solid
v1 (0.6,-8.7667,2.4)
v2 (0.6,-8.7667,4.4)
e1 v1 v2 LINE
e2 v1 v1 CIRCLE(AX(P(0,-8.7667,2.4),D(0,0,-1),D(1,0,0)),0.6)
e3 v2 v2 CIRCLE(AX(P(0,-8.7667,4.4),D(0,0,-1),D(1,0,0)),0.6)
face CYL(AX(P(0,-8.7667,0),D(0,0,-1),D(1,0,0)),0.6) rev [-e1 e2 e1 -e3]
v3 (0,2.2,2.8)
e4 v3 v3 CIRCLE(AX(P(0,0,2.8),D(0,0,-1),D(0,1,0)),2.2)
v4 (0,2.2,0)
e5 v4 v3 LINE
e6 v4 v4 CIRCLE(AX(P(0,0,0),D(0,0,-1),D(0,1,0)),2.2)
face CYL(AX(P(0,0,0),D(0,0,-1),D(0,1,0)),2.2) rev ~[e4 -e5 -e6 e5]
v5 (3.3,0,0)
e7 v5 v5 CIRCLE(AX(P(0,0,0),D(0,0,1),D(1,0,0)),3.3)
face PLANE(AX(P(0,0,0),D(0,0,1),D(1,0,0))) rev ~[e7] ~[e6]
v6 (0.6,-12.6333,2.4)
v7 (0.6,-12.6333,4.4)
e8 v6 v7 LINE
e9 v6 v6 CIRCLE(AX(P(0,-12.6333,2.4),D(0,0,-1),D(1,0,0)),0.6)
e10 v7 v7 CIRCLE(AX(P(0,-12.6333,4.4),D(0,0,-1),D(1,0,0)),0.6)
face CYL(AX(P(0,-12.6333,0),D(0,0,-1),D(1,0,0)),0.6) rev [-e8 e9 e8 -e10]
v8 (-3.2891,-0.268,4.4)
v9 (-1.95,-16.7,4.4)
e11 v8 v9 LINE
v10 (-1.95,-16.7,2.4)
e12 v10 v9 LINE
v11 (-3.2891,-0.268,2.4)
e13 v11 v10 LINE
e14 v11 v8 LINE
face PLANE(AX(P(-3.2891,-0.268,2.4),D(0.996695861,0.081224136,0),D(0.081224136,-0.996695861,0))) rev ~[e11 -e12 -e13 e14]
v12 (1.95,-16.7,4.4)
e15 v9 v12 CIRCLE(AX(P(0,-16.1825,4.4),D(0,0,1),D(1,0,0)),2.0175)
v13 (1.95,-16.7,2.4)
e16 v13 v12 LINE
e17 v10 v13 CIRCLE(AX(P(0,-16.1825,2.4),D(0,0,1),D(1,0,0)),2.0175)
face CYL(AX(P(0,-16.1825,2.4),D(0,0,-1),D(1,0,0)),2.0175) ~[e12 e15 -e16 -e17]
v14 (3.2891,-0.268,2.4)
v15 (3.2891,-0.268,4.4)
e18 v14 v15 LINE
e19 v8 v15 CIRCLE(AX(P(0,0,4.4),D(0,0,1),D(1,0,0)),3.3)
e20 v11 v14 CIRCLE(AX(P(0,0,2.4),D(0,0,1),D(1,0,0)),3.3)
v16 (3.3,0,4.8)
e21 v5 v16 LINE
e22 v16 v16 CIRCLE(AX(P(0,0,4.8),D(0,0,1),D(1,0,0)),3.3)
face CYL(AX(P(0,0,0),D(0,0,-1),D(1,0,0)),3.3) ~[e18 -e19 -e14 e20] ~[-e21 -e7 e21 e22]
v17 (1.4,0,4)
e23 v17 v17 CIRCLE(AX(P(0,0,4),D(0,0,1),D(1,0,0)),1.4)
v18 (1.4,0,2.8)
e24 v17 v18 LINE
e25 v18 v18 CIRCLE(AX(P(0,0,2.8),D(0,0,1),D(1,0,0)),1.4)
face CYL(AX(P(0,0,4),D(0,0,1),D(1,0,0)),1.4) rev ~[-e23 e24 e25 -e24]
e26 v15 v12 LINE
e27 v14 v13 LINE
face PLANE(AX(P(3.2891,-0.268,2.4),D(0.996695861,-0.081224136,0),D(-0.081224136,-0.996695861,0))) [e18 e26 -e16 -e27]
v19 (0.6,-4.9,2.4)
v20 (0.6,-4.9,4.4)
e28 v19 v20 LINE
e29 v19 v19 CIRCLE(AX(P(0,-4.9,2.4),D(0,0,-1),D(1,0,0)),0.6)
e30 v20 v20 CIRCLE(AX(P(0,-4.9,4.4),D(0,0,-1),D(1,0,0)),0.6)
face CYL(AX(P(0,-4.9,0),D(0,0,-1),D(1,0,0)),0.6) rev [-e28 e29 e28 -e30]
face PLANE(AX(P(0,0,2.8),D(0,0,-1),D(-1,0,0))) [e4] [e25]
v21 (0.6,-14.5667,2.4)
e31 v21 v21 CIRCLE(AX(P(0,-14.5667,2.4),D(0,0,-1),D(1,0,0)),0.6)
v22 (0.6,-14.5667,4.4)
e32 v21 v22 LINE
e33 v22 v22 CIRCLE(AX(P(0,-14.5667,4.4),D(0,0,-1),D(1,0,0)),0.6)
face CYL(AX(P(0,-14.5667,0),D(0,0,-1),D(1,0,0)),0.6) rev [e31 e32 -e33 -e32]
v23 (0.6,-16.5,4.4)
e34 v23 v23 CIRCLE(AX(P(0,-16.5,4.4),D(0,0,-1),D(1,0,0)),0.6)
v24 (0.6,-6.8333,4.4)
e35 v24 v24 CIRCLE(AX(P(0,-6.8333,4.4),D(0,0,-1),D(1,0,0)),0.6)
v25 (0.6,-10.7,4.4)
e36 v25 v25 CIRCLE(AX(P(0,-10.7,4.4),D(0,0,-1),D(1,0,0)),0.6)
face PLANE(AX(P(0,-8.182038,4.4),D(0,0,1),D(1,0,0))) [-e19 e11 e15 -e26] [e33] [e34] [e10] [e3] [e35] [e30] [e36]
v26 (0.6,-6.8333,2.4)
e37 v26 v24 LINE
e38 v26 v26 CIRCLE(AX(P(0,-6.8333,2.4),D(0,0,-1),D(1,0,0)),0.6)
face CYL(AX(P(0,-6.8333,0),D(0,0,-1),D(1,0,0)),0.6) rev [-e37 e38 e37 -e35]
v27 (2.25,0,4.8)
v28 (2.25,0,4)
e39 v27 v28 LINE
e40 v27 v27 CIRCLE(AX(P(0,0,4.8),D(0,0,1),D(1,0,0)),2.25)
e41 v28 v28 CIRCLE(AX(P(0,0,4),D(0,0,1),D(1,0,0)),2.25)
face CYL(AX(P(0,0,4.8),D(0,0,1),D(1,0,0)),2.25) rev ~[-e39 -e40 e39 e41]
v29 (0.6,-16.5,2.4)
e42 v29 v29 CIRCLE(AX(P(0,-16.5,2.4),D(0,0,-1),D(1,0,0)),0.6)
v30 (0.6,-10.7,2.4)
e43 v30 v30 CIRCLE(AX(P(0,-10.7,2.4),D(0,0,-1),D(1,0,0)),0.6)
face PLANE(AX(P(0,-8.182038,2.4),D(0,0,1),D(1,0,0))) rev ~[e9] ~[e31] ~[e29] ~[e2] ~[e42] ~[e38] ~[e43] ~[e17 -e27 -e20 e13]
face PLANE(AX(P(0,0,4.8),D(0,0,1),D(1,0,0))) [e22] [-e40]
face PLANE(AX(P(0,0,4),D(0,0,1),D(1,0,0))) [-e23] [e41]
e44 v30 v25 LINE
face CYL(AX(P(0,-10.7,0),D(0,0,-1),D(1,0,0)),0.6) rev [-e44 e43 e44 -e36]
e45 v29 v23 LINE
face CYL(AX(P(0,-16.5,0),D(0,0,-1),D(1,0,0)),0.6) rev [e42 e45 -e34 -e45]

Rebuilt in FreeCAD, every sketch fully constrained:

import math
import FreeCAD as App
import Part
import Sketcher
from FreeCAD import Vector
Q = App.Units.Quantity

doc = App.newDocument("Part")
body = doc.addObject("PartDesign::Body", "Body")

# Sketch on XY plane
sketch1 = doc.addObject("Sketcher::SketchObject", "Sketch")
body.addObject(sketch1)
sketch1.AttachmentSupport = (doc.XY_Plane, [""])
sketch1.MapMode = "FlatFace"
sketch1.addGeometry(Part.Circle(Vector(0, 0, 0), Vector(0, 0, 1), 3.3), False)
sketch1.addConstraint([
    Sketcher.Constraint("Coincident", 0, 3, -1, 1),
    Sketcher.Constraint("Diameter", 0, 6.6),
])
pad1 = doc.addObject("PartDesign::Pad", "Pad")
body.addObject(pad1)
pad1.Profile = sketch1
pad1.Length = 4.8

# Sketch on XY plane
sketch2 = doc.addObject("Sketcher::SketchObject", "Sketch001")
body.addObject(sketch2)
sketch2.AttachmentSupport = (doc.XY_Plane, [""])
sketch2.MapMode = "FlatFace"
sketch2.AttachmentOffset = App.Placement(Vector(0, 0, 4.8), App.Rotation())
sketch2.addGeometry(Part.Circle(Vector(0, 0, 0), Vector(0, 0, 1), 2.2), False)
sketch2.addConstraint([
    Sketcher.Constraint("Coincident", 0, 3, -1, 1),
    Sketcher.Constraint("Diameter", 0, 4.5),
])
pocket1 = doc.addObject("PartDesign::Pocket", "Pocket")
body.addObject(pocket1)
pocket1.Profile = sketch2
pocket1.Length = 0.8

# Sketch on XY plane
sketch3 = doc.addObject("Sketcher::SketchObject", "Sketch002")
body.addObject(sketch3)
sketch3.AttachmentSupport = (doc.XY_Plane, [""])
sketch3.MapMode = "FlatFace"
sketch3.AttachmentOffset = App.Placement(Vector(0, 0, 4), App.Rotation())
sketch3.addGeometry(Part.Circle(Vector(0, 0, 0), Vector(0, 0, 1), 1.4), False)
sketch3.addConstraint([
    Sketcher.Constraint("Coincident", 0, 3, -1, 1),
    Sketcher.Constraint("Diameter", 0, 2.8),
])
pocket2 = doc.addObject("PartDesign::Pocket", "Pocket001")
body.addObject(pocket2)
pocket2.Profile = sketch3
pocket2.Type = "ThroughAll"

# Sketch on XY plane
sketch4 = doc.addObject("Sketcher::SketchObject", "Sketch003")
body.addObject(sketch4)
sketch4.AttachmentSupport = (doc.XY_Plane, [""])
sketch4.MapMode = "FlatFace"
sketch4.addGeometry(Part.Circle(Vector(0, 0, 0), Vector(0, 0, 1), 2.2), False)
sketch4.addConstraint([
    Sketcher.Constraint("Coincident", 0, 3, -1, 1),
    Sketcher.Constraint("Diameter", 0, 4.4),
])
pocket3 = doc.addObject("PartDesign::Pocket", "Pocket002")
body.addObject(pocket3)
pocket3.Profile = sketch4
pocket3.Length = 2.8
pocket3.Reversed = True

# Sketch on XY plane
sketch5 = doc.addObject("Sketcher::SketchObject", "Sketch004")
body.addObject(sketch5)
sketch5.AttachmentSupport = (doc.XY_Plane, [""])
sketch5.MapMode = "FlatFace"
sketch5.AttachmentOffset = App.Placement(Vector(0, 0, 2.4), App.Rotation())
sketch5.addGeometry([
    Part.LineSegment(Vector(-1.9, -16.7, 0), Vector(-3.3, -0.3, 0)),
    Part.ArcOfCircle(Part.Circle(Vector(0, 0, 0), Vector(0, 0, 1), 3.3), math.radians(-175), math.radians(-5)),
    Part.LineSegment(Vector(3.3, -0.3, 0), Vector(1.9, -16.7, 0)),
    Part.ArcOfCircle(Part.Circle(Vector(0, -16.2, 0), Vector(0, 0, 1), 2), math.radians(-165), math.radians(-15)),
], False)
sketch5.addConstraint([
    Sketcher.Constraint("Tangent", 0, 2, 1, 1),
    Sketcher.Constraint("Tangent", 1, 2, 2, 1),
    Sketcher.Constraint("Coincident", 2, 2, 3, 2),
    Sketcher.Constraint("Coincident", 3, 1, 0, 1),
    Sketcher.Constraint("Coincident", 1, 3, -1, 1),
    Sketcher.Constraint("Symmetric", 2, 2, 3, 1, -2),
    Sketcher.Constraint("Radius", 1, 3.3),
    Sketcher.Constraint("DistanceY", 2, 2, -1, 1, 16.7),
    Sketcher.Constraint("Angle", 0, Q("94.659 deg")),
    Sketcher.Constraint("Radius", 3, 2.0175),
])
pad2 = doc.addObject("PartDesign::Pad", "Pad001")
body.addObject(pad2)
pad2.Profile = sketch5
pad2.Length = 2

# Sketch on XY plane
sketch6 = doc.addObject("Sketcher::SketchObject", "Sketch005")
body.addObject(sketch6)
sketch6.AttachmentSupport = (doc.XY_Plane, [""])
sketch6.MapMode = "FlatFace"
sketch6.addGeometry([
    Part.Circle(Vector(0, -4.9, 0), Vector(0, 0, 1), 0.6),  # 0
    Part.Circle(Vector(0, -6.8, 0), Vector(0, 0, 1), 0.6),  # 1
    Part.Circle(Vector(0, -8.8, 0), Vector(0, 0, 1), 0.6),  # 2
    Part.Circle(Vector(0, -10.7, 0), Vector(0, 0, 1), 0.6),  # 3
    Part.Circle(Vector(0, -12.6, 0), Vector(0, 0, 1), 0.6),  # 4
    Part.Circle(Vector(0, -14.6, 0), Vector(0, 0, 1), 0.6),  # 5
    Part.Circle(Vector(0, -16.5, 0), Vector(0, 0, 1), 0.6),  # 6
], False)
sketch6.addConstraint([
    Sketcher.Constraint("Equal", 0, 1),
    Sketcher.Constraint("Equal", 1, 2),
    Sketcher.Constraint("Equal", 2, 3),
    Sketcher.Constraint("Equal", 3, 4),
    Sketcher.Constraint("Equal", 4, 5),
    Sketcher.Constraint("Equal", 5, 6),
    Sketcher.Constraint("PointOnObject", 0, 3, -2),
    Sketcher.Constraint("PointOnObject", 1, 3, -2),
    Sketcher.Constraint("PointOnObject", 2, 3, -2),
    Sketcher.Constraint("PointOnObject", 3, 3, -2),
    Sketcher.Constraint("PointOnObject", 4, 3, -2),
    Sketcher.Constraint("PointOnObject", 5, 3, -2),
    Sketcher.Constraint("PointOnObject", 6, 3, -2),
    Sketcher.Constraint("Diameter", 0, 1.2),
    Sketcher.Constraint("DistanceY", 0, 3, -1, 1, 4.9),
    Sketcher.Constraint("DistanceY", 3, 3, -1, 1, 10.7),
    Sketcher.Constraint("DistanceY", 6, 3, -1, 1, 16.5),
    Sketcher.Constraint("DistanceY", 4, 3, 1, 3, 5.8),
    Sketcher.Constraint("DistanceY", 5, 3, 2, 3, 5.8),
    Sketcher.Constraint("DistanceY", 1, 3, -1, 1, 6.8333),
    Sketcher.Constraint("DistanceY", 2, 3, -1, 1, 8.7667),
])
pocket4 = doc.addObject("PartDesign::Pocket", "Pocket003")
body.addObject(pocket4)
pocket4.Profile = sketch6
pocket4.Type = "ThroughAll"
pocket4.Reversed = True

doc.recompute()
